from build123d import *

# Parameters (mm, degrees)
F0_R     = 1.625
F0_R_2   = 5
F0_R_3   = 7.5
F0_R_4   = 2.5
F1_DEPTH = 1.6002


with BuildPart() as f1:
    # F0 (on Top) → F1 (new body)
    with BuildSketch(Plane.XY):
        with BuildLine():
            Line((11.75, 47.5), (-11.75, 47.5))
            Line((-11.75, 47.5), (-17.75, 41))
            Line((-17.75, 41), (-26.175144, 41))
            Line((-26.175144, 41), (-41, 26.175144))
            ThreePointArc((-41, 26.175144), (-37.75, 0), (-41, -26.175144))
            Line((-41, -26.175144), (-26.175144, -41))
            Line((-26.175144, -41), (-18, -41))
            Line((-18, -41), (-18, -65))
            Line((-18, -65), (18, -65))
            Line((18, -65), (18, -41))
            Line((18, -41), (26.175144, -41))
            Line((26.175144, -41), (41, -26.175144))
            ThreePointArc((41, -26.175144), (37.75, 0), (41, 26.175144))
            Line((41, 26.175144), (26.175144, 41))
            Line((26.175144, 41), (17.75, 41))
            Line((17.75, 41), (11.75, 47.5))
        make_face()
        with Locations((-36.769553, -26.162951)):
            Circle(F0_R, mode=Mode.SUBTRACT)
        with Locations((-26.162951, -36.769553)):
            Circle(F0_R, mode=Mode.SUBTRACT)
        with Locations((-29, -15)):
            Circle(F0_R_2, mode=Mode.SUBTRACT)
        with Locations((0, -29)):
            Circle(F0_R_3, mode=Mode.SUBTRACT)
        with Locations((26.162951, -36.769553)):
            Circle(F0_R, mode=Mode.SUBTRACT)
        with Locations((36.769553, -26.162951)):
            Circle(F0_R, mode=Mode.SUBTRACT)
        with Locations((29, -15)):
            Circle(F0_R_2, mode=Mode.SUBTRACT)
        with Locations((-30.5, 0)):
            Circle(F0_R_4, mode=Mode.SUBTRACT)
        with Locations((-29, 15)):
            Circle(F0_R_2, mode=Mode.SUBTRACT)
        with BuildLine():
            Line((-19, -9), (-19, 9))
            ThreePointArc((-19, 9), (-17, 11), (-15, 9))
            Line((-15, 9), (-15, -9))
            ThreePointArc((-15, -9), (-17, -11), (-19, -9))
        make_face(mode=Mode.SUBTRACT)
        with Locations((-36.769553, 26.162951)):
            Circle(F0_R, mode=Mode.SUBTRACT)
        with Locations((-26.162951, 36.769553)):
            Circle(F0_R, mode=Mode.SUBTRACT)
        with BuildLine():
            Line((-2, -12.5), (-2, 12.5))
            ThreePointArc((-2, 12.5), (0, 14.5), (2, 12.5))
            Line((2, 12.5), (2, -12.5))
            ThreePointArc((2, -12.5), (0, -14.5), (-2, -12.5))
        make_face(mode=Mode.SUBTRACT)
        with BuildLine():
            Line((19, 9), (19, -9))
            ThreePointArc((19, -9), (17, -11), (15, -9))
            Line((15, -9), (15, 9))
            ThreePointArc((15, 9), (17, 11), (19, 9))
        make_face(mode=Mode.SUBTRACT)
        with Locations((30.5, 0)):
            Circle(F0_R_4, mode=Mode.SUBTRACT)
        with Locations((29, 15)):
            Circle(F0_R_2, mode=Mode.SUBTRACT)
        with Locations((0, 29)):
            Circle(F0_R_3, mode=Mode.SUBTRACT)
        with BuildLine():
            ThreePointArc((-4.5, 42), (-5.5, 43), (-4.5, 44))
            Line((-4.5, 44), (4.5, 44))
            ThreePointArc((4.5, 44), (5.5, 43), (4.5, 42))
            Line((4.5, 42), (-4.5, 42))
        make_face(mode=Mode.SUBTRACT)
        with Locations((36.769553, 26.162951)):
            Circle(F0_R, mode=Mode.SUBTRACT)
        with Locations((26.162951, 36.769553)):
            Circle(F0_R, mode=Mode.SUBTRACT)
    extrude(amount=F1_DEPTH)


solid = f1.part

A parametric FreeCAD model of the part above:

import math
import FreeCAD as App
import Part
import Sketcher
from FreeCAD import Vector

doc = App.newDocument("Part")
body = doc.addObject("PartDesign::Body", "Body")

sketch1 = body.newObject("Sketcher::SketchObject", "Sketch")
sketch1.AttachmentSupport = (doc.getObject("XY_Plane"), [""])
sketch1.MapMode = "FlatFace"
sketch1.addGeometry([
    Part.LineSegment(Vector(11.75, 47.5, 0), Vector(-11.75, 47.5, 0)),
    Part.LineSegment(Vector(-11.75, 47.5, 0), Vector(-17.75, 41, 0)),
    Part.LineSegment(Vector(-17.75, 41, 0), Vector(-26.175144, 41, 0)),
    Part.LineSegment(Vector(-26.175144, 41, 0), Vector(-41, 26.175144, 0)),
    Part.ArcOfCircle(Part.Circle(Vector(-144.780871, 0, 0), Vector(0, 0, 1), 107.030871), math.radians(-14.155653), math.radians(14.155653)),
    Part.LineSegment(Vector(-41, -26.175144, 0), Vector(-26.175144, -41, 0)),
    Part.LineSegment(Vector(-26.175144, -41, 0), Vector(-18, -41, 0)),
    Part.LineSegment(Vector(-18, -41, 0), Vector(-18, -65, 0)),
    Part.LineSegment(Vector(-18, -65, 0), Vector(18, -65, 0)),
    Part.LineSegment(Vector(18, -65, 0), Vector(18, -41, 0)),
    Part.LineSegment(Vector(18, -41, 0), Vector(26.175144, -41, 0)),
    Part.LineSegment(Vector(26.175144, -41, 0), Vector(41, -26.175144, 0)),
    Part.ArcOfCircle(Part.Circle(Vector(144.780871, 0, 0), Vector(0, 0, 1), 107.030871), math.radians(165.844347), math.radians(194.155653)),
    Part.LineSegment(Vector(41, 26.175144, 0), Vector(26.175144, 41, 0)),
    Part.LineSegment(Vector(26.175144, 41, 0), Vector(17.75, 41, 0)),
    Part.LineSegment(Vector(17.75, 41, 0), Vector(11.75, 47.5, 0)),
    Part.Circle(Vector(-26.162951, -36.769553, 0), Vector(0, 0, 1), 1.625),
    Part.Circle(Vector(-36.769553, -26.162951, 0), Vector(0, 0, 1), 1.625),
    Part.Circle(Vector(-29, -15, 0), Vector(0, 0, 1), 5),
    Part.Circle(Vector(-30.5, 0, 0), Vector(0, 0, 1), 2.5),
    Part.ArcOfCircle(Part.Circle(Vector(-17, -9, 0), Vector(0, 0, 1), 2), math.radians(180), math.radians(360)),
    Part.LineSegment(Vector(-19, -9, 0), Vector(-19, 9, 0)),
    Part.ArcOfCircle(Part.Circle(Vector(-17, 9, 0), Vector(0, 0, 1), 2), math.radians(0), math.radians(180)),
    Part.LineSegment(Vector(-15, 9, 0), Vector(-15, -9, 0)),
    Part.Circle(Vector(0, -29, 0), Vector(0, 0, 1), 7.5),
    Part.Circle(Vector(26.162951, -36.769553, 0), Vector(0, 0, 1), 1.625),
    Part.Circle(Vector(36.769553, -26.162951, 0), Vector(0, 0, 1), 1.625),
    Part.ArcOfCircle(Part.Circle(Vector(0, -12.5, 0), Vector(0, 0, 1), 2), math.radians(180), math.radians(360)),
    Part.LineSegment(Vector(-2, -12.5, 0), Vector(-2, 12.5, 0)),
    Part.ArcOfCircle(Part.Circle(Vector(0, 12.5, 0), Vector(0, 0, 1), 2), math.radians(0), math.radians(180)),
    Part.LineSegment(Vector(2, 12.5, 0), Vector(2, -12.5, 0)),
    Part.ArcOfCircle(Part.Circle(Vector(17, 9, 0), Vector(0, 0, 1), 2), math.radians(0), math.radians(180)),
    Part.LineSegment(Vector(19, 9, 0), Vector(19, -9, 0)),
    Part.ArcOfCircle(Part.Circle(Vector(17, -9, 0), Vector(0, 0, 1), 2), math.radians(180), math.radians(360)),
    Part.LineSegment(Vector(15, -9, 0), Vector(15, 9, 0)),
    Part.Circle(Vector(29, -15, 0), Vector(0, 0, 1), 5),
    Part.Circle(Vector(30.5, 0, 0), Vector(0, 0, 1), 2.5),
    Part.Circle(Vector(-29, 15, 0), Vector(0, 0, 1), 5),
    Part.Circle(Vector(-36.769553, 26.162951, 0), Vector(0, 0, 1), 1.625),
    Part.Circle(Vector(-26.162951, 36.769553, 0), Vector(0, 0, 1), 1.625),
    Part.Circle(Vector(29, 15, 0), Vector(0, 0, 1), 5),
    Part.Circle(Vector(0, 29, 0), Vector(0, 0, 1), 7.5),
    Part.LineSegment(Vector(4.5, 42, 0), Vector(-4.5, 42, 0)),
    Part.ArcOfCircle(Part.Circle(Vector(-4.5, 43, 0), Vector(0, 0, 1), 1), math.radians(90), math.radians(270)),
    Part.LineSegment(Vector(-4.5, 44, 0), Vector(4.5, 44, 0)),
    Part.ArcOfCircle(Part.Circle(Vector(4.5, 43, 0), Vector(0, 0, 1), 1), math.radians(-90), math.radians(90)),
    Part.Circle(Vector(36.769553, 26.162951, 0), Vector(0, 0, 1), 1.625),
    Part.Circle(Vector(26.162951, 36.769553, 0), Vector(0, 0, 1), 1.625),
], False)
sketch1.addConstraint([
    Sketcher.Constraint("Coincident", 0, 2, 1, 1),
    Sketcher.Constraint("Coincident", 1, 2, 2, 1),
    Sketcher.Constraint("Coincident", 2, 2, 3, 1),
    Sketcher.Constraint("Coincident", 3, 2, 4, 2),
    Sketcher.Constraint("Coincident", 4, 1, 5, 1),
    Sketcher.Constraint("Coincident", 5, 2, 6, 1),
    Sketcher.Constraint("Coincident", 6, 2, 7, 1),
    Sketcher.Constraint("Coincident", 7, 2, 8, 1),
    Sketcher.Constraint("Coincident", 8, 2, 9, 1),
    Sketcher.Constraint("Coincident", 9, 2, 10, 1),
    Sketcher.Constraint("Coincident", 10, 2, 11, 1),
    Sketcher.Constraint("Coincident", 11, 2, 12, 2),
    Sketcher.Constraint("Coincident", 12, 1, 13, 1),
    Sketcher.Constraint("Coincident", 13, 2, 14, 1),
    Sketcher.Constraint("Coincident", 14, 2, 15, 1),
    Sketcher.Constraint("Coincident", 15, 2, 0, 1),
    Sketcher.Constraint("Tangent", 20, 1, 21, 1),
    Sketcher.Constraint("Tangent", 21, 2, 22, 2),
    Sketcher.Constraint("Tangent", 22, 1, 23, 1),
    Sketcher.Constraint("Tangent", 23, 2, 20, 2),
    Sketcher.Constraint("Tangent", 27, 1, 28, 1),
    Sketcher.Constraint("Tangent", 28, 2, 29, 2),
    Sketcher.Constraint("Tangent", 29, 1, 30, 1),
    Sketcher.Constraint("Tangent", 30, 2, 27, 2),
    Sketcher.Constraint("Tangent", 31, 1, 32, 1),
    Sketcher.Constraint("Tangent", 32, 2, 33, 2),
    Sketcher.Constraint("Tangent", 33, 1, 34, 1),
    Sketcher.Constraint("Tangent", 34, 2, 31, 2),
    Sketcher.Constraint("Tangent", 42, 2, 43, 2),
    Sketcher.Constraint("Tangent", 43, 1, 44, 1),
    Sketcher.Constraint("Tangent", 44, 2, 45, 2),
    Sketcher.Constraint("Tangent", 45, 1, 42, 1),
    Sketcher.Constraint("Horizontal", 0),
    Sketcher.Constraint("Horizontal", 2),
    Sketcher.Constraint("Horizontal", 6),
    Sketcher.Constraint("Vertical", 7),
    Sketcher.Constraint("Horizontal", 8),
    Sketcher.Constraint("Vertical", 9),
    Sketcher.Constraint("Horizontal", 10),
    Sketcher.Constraint("Horizontal", 14),
    Sketcher.Constraint("Vertical", 21),
    Sketcher.Constraint("Vertical", 23),
    Sketcher.Constraint("Vertical", 28),
    Sketcher.Constraint("Vertical", 30),
    Sketcher.Constraint("Vertical", 32),
    Sketcher.Constraint("Vertical", 34),
    Sketcher.Constraint("Horizontal", 42),
    Sketcher.Constraint("Horizontal", 44),
    Sketcher.Constraint("Equal", 4, 12),
    Sketcher.Constraint("Equal", 16, 17),
    Sketcher.Constraint("Equal", 17, 25),
    Sketcher.Constraint("Equal", 25, 26),
    Sketcher.Constraint("Equal", 22, 27),
    Sketcher.Constraint("Equal", 29, 31),
    Sketcher.Constraint("Equal", 18, 35),
    Sketcher.Constraint("Equal", 19, 36),
    Sketcher.Constraint("Equal", 35, 37),
    Sketcher.Constraint("Equal", 26, 38),
    Sketcher.Constraint("Equal", 38, 39),
    Sketcher.Constraint("Equal", 37, 40),
    Sketcher.Constraint("Equal", 24, 41),
    Sketcher.Constraint("Equal", 39, 46),
    Sketcher.Constraint("Equal", 46, 47),
    Sketcher.Constraint("Symmetric", 4, 3, 12, 3, -1, 1),
    Sketcher.Constraint("Symmetric", 27, 3, 29, 3, -1, 1),
    Sketcher.Constraint("Symmetric", 20, 3, 31, 3, -1, 1),
    Sketcher.Constraint("Symmetric", 19, 3, 36, 3, -1, 1),
    Sketcher.Constraint("Symmetric", 35, 3, 37, 3, -1, 1),
    Sketcher.Constraint("Symmetric", 26, 3, 38, 3, -1, 1),
    Sketcher.Constraint("Symmetric", 25, 3, 39, 3, -1, 1),
    Sketcher.Constraint("Symmetric", 18, 3, 40, 3, -1, 1),
    Sketcher.Constraint("Symmetric", 24, 3, 41, 3, -1, 1),
    Sketcher.Constraint("Symmetric", 17, 3, 46, 3, -1, 1),
    Sketcher.Constraint("Symmetric", 16, 3, 47, 3, -1, 1),
    Sketcher.Constraint("Symmetric", 2, 2, 10, 2, -1, 1),
    Sketcher.Constraint("Symmetric", 5, 2, 13, 2, -1, 1),
    Sketcher.Constraint("Symmetric", 16, 3, 25, 3, -2),
    Sketcher.Constraint("Symmetric", 17, 3, 26, 3, -2),
    Sketcher.Constraint("Symmetric", 18, 3, 35, 3, -2),
    Sketcher.Constraint("Symmetric", 6, 2, 9, 2, -2),
    Sketcher.Constraint("Symmetric", 4, 1, 11, 2, -2),
    Sketcher.Constraint("PointOnObject", 19, 3, -1),
    Sketcher.Constraint("PointOnObject", 24, 3, -2),
    Sketcher.Constraint("Perpendicular", 3, 5),
    Sketcher.Constraint("Perpendicular", 5, 11),
    Sketcher.Constraint("Perpendicular", 11, 13),
    Sketcher.Constraint("Horizontal", 22, 3, 31, 3),
    Sketcher.Constraint("Horizontal", 20, 3, 33, 3),
    Sketcher.Constraint("Vertical", 2, 2, 5, 2),
    Sketcher.Constraint("Equal", 2, 14),
    Sketcher.Constraint("Equal", 1, 15),
    Sketcher.Constraint("Diameter", 18, 10.0),
    Sketcher.Constraint("Diameter", 19, 5.0),
    Sketcher.Constraint("Diameter", 24, 15.0),
    Sketcher.Constraint("Radius", 20, 2.0),
    Sketcher.Constraint("Radius", 43, 1.0),
    Sketcher.Constraint("Diameter", 16, 3.25),
    Sketcher.Constraint("DistanceX", 8, 1, 8, 2, 36.0),
    Sketcher.Constraint("DistanceX", 42, 2, 42, 1, 9.0),
    Sketcher.Constraint("DistanceY", 7, 2, 7, 1, 24.0),
    Sketcher.Constraint("DistanceY", 21, 1, 21, 2, 18.0),
    Sketcher.Constraint("DistanceY", 28, 1, 28, 2, 25.0),
    Sketcher.Constraint("DistanceX", 0, 2, 0, 1, 23.5),
    Sketcher.Constraint("DistanceX", 18, 3, -1, 1, 29.0),
    Sketcher.Constraint("DistanceY", 18, 3, -1, 1, 15.0),
    Sketcher.Constraint("DistanceX", 20, 3, -1, 1, 17.0),
    Sketcher.Constraint("DistanceY", 24, 3, -1, 1, 29.0),
    Sketcher.Constraint("DistanceY", -1, 1, 43, 3, 43.0),
    Sketcher.Constraint("DistanceY", -1, 1, 1, 2, 41.0),
    Sketcher.Constraint("DistanceX", 3, 2, -1, 1, 41.0),
    Sketcher.Constraint("DistanceX", 1, 2, 0, 2, 6.0),
    Sketcher.Constraint("DistanceX", 19, 3, -1, 1, 30.5),
    Sketcher.Constraint("DistanceX", 43, 3, -1, 1, 4.5),
    Sketcher.Constraint("DistanceY", -1, 1, 0, 2, 47.5),
    Sketcher.Constraint("Radius", 4, 107.030871),
    Sketcher.Constraint("DistanceX", 2, 2, 2, 1, 8.425144),
    Sketcher.Constraint("DistanceX", 16, 3, -1, 1, 26.162951),
    Sketcher.Constraint("DistanceY", 17, 3, -1, 1, 26.162951),
    Sketcher.Constraint("DistanceX", 4, 3, 17, 3, 108.011318),
    Sketcher.Constraint("DistanceY", 3, 2, 39, 3, 10.594409),
])
pad1 = body.newObject("PartDesign::Pad", "Pad")
pad1.Profile = sketch1
pad1.Length = 1.6002

doc.recompute()
